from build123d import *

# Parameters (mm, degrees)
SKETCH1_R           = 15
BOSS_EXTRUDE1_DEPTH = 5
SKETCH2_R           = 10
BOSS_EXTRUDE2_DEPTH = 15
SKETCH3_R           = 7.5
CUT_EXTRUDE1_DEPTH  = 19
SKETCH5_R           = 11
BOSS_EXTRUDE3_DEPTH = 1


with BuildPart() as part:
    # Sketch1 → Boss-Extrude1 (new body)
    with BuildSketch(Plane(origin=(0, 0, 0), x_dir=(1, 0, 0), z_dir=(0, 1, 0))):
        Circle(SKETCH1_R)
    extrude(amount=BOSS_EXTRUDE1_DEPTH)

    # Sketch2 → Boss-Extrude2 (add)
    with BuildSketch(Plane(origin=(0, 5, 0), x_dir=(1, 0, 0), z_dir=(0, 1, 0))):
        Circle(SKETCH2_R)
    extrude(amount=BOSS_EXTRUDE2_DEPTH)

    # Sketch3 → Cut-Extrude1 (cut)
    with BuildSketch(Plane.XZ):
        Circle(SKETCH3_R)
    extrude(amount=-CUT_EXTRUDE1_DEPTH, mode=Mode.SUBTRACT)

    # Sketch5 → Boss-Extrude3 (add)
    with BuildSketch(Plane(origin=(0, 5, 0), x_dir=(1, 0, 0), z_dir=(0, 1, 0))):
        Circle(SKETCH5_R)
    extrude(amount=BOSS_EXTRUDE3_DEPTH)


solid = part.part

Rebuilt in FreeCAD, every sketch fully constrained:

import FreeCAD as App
import Part
import Sketcher
from FreeCAD import Vector
Q = App.Units.Quantity

doc = App.newDocument("Part")
body = doc.addObject("PartDesign::Body", "Body")

sketch1 = body.newObject("Sketcher::SketchObject", "Sketch")
sketch1.AttachmentSupport = (doc.getObject("XZ_Plane"), [""])
sketch1.MapMode = "FlatFace"
sketch1.addGeometry(Part.Circle(Vector(0, 0, 0), Vector(0, 0, 1), 15), False)
sketch1.addConstraint(Sketcher.Constraint("Coincident", 0, 3, -1, 1))
sketch1.addConstraint(Sketcher.Constraint("Diameter", 0, Q("30 mm")))
pad1 = body.newObject("PartDesign::Pad", "Pad")
pad1.Profile = sketch1
pad1.Length = 5
pad1.Reversed = True

sketch2 = body.newObject("Sketcher::SketchObject", "Sketch001")
sketch2.AttachmentSupport = (doc.getObject("XZ_Plane"), [""])
sketch2.MapMode = "FlatFace"
sketch2.AttachmentOffset = App.Placement(Vector(0, 0, -5), App.Rotation())
sketch2.addGeometry(Part.Circle(Vector(0, 0, 0), Vector(0, 0, 1), 10), False)
sketch2.addConstraint(Sketcher.Constraint("Coincident", 0, 3, -1, 1))
sketch2.addConstraint(Sketcher.Constraint("Diameter", 0, Q("20 mm")))
pad2 = body.newObject("PartDesign::Pad", "Pad001")
pad2.Profile = sketch2
pad2.Length = 15
pad2.Reversed = True

sketch3 = body.newObject("Sketcher::SketchObject", "Sketch002")
sketch3.AttachmentSupport = (doc.getObject("XZ_Plane"), [""])
sketch3.MapMode = "FlatFace"
sketch3.addGeometry(Part.Circle(Vector(0, 0, 0), Vector(0, 0, 1), 7.5), False)
sketch3.addConstraint(Sketcher.Constraint("Coincident", 0, 3, -1, 1))
sketch3.addConstraint(Sketcher.Constraint("Diameter", 0, Q("15 mm")))
pocket1 = body.newObject("PartDesign::Pocket", "Pocket")
pocket1.Profile = sketch3
pocket1.Length = 19

sketch4 = body.newObject("Sketcher::SketchObject", "Sketch003")
sketch4.AttachmentSupport = (doc.getObject("XZ_Plane"), [""])
sketch4.MapMode = "FlatFace"
sketch4.AttachmentOffset = App.Placement(Vector(0, 0, -5), App.Rotation())
sketch4.addGeometry(Part.Circle(Vector(0, 0, 0), Vector(0, 0, 1), 11), False)
sketch4.addConstraint(Sketcher.Constraint("Coincident", 0, 3, -1, 1))
sketch4.addConstraint(Sketcher.Constraint("Diameter", 0, Q("22 mm")))
pad3 = body.newObject("PartDesign::Pad", "Pad002")
pad3.Profile = sketch4
pad3.Length = 1
pad3.Reversed = True

doc.recompute()
